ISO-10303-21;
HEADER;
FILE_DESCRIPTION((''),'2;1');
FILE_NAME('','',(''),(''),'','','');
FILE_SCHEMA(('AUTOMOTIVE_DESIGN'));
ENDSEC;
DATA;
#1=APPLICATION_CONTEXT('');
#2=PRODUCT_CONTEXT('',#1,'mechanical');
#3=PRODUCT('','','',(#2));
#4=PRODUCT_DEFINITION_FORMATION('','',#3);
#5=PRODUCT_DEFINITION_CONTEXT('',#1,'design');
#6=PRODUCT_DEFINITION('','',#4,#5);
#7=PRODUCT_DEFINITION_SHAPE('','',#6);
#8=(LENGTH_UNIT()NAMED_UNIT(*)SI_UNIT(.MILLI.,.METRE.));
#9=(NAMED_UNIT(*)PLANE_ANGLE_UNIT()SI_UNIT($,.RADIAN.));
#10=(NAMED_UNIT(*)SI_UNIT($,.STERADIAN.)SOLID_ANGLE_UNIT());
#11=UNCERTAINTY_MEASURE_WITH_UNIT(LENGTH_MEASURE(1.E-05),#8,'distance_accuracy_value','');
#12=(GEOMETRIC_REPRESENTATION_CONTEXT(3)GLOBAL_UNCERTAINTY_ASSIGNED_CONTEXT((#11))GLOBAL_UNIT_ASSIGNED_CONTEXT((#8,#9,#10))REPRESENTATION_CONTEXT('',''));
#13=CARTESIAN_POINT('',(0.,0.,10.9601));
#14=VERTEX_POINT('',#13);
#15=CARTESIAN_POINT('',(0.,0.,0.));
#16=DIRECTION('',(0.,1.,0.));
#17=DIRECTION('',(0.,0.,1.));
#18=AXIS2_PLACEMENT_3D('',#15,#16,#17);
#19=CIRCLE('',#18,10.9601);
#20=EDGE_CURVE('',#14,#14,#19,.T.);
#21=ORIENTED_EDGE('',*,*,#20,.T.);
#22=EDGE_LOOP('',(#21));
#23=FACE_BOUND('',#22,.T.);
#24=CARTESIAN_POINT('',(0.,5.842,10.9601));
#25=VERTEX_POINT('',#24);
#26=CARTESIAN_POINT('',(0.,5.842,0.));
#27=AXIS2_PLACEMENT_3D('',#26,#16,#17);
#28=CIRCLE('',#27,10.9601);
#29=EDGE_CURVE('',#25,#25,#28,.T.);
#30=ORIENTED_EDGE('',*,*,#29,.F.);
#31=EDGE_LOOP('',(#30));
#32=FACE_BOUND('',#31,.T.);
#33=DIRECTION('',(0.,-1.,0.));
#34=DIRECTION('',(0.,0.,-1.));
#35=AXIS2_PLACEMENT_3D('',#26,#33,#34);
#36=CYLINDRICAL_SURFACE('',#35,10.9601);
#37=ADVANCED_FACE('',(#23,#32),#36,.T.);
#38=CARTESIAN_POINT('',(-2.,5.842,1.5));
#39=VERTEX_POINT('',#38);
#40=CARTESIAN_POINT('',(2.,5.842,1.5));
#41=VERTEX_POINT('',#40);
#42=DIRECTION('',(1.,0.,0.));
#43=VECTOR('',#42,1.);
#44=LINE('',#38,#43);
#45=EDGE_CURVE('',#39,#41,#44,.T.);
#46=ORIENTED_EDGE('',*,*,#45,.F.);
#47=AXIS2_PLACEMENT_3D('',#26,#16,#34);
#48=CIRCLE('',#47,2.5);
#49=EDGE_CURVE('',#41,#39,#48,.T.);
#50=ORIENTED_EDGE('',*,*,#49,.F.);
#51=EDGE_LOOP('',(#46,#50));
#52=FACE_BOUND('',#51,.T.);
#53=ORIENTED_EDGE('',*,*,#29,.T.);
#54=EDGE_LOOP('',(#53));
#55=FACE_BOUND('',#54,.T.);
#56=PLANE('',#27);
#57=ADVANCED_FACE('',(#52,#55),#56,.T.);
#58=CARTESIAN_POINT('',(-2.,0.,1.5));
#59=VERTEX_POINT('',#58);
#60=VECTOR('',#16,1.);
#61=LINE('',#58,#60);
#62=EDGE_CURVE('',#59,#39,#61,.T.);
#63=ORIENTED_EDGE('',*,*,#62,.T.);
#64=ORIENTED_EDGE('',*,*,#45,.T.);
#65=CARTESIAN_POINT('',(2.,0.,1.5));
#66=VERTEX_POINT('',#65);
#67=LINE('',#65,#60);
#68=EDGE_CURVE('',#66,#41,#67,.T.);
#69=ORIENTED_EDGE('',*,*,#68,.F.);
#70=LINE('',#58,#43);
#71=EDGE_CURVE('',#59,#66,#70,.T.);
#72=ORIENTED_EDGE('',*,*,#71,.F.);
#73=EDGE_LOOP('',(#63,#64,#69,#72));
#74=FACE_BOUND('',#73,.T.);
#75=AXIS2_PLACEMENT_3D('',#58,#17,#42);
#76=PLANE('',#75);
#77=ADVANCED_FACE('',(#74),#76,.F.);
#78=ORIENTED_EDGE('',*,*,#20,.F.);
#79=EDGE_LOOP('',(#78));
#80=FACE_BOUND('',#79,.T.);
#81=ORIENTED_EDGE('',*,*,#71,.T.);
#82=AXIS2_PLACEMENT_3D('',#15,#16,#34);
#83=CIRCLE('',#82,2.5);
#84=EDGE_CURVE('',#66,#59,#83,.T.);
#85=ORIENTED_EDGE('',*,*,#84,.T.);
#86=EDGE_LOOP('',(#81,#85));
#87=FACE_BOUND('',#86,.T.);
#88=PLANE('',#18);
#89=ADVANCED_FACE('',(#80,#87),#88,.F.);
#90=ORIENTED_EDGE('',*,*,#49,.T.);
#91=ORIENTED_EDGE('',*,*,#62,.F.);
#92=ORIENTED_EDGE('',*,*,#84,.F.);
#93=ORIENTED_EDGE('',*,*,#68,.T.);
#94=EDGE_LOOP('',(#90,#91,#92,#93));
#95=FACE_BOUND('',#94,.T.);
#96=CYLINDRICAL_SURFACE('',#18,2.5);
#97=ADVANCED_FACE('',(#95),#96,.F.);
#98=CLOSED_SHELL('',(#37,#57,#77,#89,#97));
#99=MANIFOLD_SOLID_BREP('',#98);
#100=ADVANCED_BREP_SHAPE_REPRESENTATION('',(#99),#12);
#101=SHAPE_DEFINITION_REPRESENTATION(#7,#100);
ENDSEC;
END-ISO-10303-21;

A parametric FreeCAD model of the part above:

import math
import FreeCAD as App
import Part
import Sketcher

V = App.Vector
Q = App.Units.Quantity

doc = App.newDocument("Part")
body = doc.addObject("PartDesign::Body", "Body")

# Sketch on XZ plane
sketch1 = body.newObject("Sketcher::SketchObject", "Sketch")
sketch1.AttachmentSupport = (doc.getObject("XZ_Plane"), [""])
sketch1.MapMode = "FlatFace"
sketch1.addGeometry(Part.Circle(V(0, 0, 0), V(0, 0, 1), 11), False)
sketch1.addConstraint(Sketcher.Constraint("Coincident", 0, 3, -1, 1))
sketch1.addConstraint(Sketcher.Constraint("Diameter", 0, Q("21.9202 mm")))
pad1 = body.newObject("PartDesign::Pad", "Pad")
pad1.Profile = sketch1
pad1.Length = 5.842
pad1.Reversed = True

# Sketch on XZ plane
sketch2 = body.newObject("Sketcher::SketchObject", "Sketch001")
sketch2.AttachmentSupport = (doc.getObject("XZ_Plane"), [""])
sketch2.MapMode = "FlatFace"
sketch2.AttachmentOffset = App.Placement(V(0, 0, -5.842), App.Rotation())
sketch2.addGeometry(Part.LineSegment(V(-2, 1.5, 0), V(2, 1.5, 0)), False)
sketch2.addGeometry(Part.ArcOfCircle(Part.Circle(V(0, 0, 0), V(0, 0, 1), 2.5), math.radians(143), math.radians(397)), False)
sketch2.addConstraint(Sketcher.Constraint("Coincident", 0, 1, 1, 1))
sketch2.addConstraint(Sketcher.Constraint("Coincident", 1, 2, 0, 2))
sketch2.addConstraint(Sketcher.Constraint("Horizontal", 0))
sketch2.addConstraint(Sketcher.Constraint("Coincident", 1, 3, -1, 1))
sketch2.addConstraint(Sketcher.Constraint("Radius", 1, Q("2.5 mm")))
sketch2.addConstraint(Sketcher.Constraint("DistanceX", 0, 1, 0, 2, Q("4 mm")))
pocket1 = body.newObject("PartDesign::Pocket", "Pocket")
pocket1.Profile = sketch2
pocket1.Type = "ThroughAll"
pocket1.Reversed = True

doc.recompute()
